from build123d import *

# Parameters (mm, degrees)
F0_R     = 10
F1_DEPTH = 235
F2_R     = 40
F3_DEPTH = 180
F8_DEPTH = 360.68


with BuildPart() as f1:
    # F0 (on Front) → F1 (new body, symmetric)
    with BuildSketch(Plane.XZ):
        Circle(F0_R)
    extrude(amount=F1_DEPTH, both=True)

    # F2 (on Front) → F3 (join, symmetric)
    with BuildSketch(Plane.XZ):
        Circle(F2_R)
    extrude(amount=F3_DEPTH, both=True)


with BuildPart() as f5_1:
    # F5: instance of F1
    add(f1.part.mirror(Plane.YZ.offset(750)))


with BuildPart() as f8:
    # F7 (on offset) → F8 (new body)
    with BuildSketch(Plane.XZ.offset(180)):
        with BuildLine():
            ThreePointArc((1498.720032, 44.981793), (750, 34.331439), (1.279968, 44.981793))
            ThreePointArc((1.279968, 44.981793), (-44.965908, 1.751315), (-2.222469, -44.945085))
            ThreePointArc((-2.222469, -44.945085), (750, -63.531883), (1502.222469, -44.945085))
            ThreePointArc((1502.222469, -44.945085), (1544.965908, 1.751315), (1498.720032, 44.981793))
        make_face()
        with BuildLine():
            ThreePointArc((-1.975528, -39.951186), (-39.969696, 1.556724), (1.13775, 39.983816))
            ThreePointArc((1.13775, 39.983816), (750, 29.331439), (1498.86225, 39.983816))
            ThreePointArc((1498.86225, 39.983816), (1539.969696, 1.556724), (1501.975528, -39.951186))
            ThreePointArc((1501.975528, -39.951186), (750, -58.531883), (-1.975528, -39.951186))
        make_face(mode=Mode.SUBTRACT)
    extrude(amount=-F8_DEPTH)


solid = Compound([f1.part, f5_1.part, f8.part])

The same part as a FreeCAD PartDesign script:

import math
import FreeCAD as App
import Part
import Sketcher
from FreeCAD import Vector

doc = App.newDocument("Part")
body = doc.addObject("PartDesign::Body", "Body")

# Sketch on XZ plane
sketch1 = doc.addObject("Sketcher::SketchObject", "Sketch")
body.addObject(sketch1)
sketch1.AttachmentSupport = (doc.XZ_Plane, [""])
sketch1.MapMode = "FlatFace"
sketch1.addGeometry(Part.Circle(Vector(0, 0, 0), Vector(0, 0, 1), 10), False)
sketch1.addConstraint([
    Sketcher.Constraint("Coincident", 0, 3, -1, 1),
    Sketcher.Constraint("Diameter", 0, 20.0),
])
pad1 = doc.addObject("PartDesign::Pad", "Pad")
body.addObject(pad1)
pad1.Profile = sketch1
pad1.Length = 470
pad1.Midplane = True

# Sketch on XZ plane
sketch2 = doc.addObject("Sketcher::SketchObject", "Sketch001")
body.addObject(sketch2)
sketch2.AttachmentSupport = (doc.XZ_Plane, [""])
sketch2.MapMode = "FlatFace"
sketch2.addGeometry(Part.Circle(Vector(0, 0, 0), Vector(0, 0, 1), 40), False)
sketch2.addConstraint([
    Sketcher.Constraint("Coincident", 0, 3, -1, 1),
    Sketcher.Constraint("Diameter", 0, 80.0),
])
pad2 = doc.addObject("PartDesign::Pad", "Pad001")
body.addObject(pad2)
pad2.Profile = sketch2
pad2.Length = 360
pad2.Midplane = True
body2 = doc.addObject("PartDesign::Body", "Body001")
doc.recompute()

mirroring = doc.addObject("Part::Mirroring", "Mirroring")
mirroring.Source = body
mirroring.Base = Vector(750, 0, 0)
mirroring.Normal = Vector(1, 0, 0)
body2.BaseFeature = mirroring
doc.recompute()
body3 = doc.addObject("PartDesign::Body", "Body002")

# Sketch on XZ plane
sketch3 = doc.addObject("Sketcher::SketchObject", "Sketch002")
body3.addObject(sketch3)
sketch3.AttachmentSupport = (doc.getObject("XZ_Plane002"), [""])
sketch3.MapMode = "FlatFace"
sketch3.AttachmentOffset = App.Placement(Vector(0, 0, 180), App.Rotation())
sketch3.addGeometry([
    Part.ArcOfCircle(Part.Circle(Vector(750, 26357, 0), Vector(0, 0, 1), 26323), math.radians(-91.63), math.radians(-88.37)),  # 0
    Part.ArcOfCircle(Part.Circle(Vector(0, 0, 0), Vector(0, 0, 1), 45), math.radians(88), math.radians(267)),  # 1
    Part.ArcOfCircle(Part.Circle(Vector(750, 15167, 0), Vector(0, 0, 1), 15231), math.radians(-92.83), math.radians(-87.17)),  # 2
    Part.ArcOfCircle(Part.Circle(Vector(1500, 0, 0), Vector(0, 0, 1), 45), math.radians(-87), math.radians(92)),  # 3
    Part.ArcOfCircle(Part.Circle(Vector(750, 15167, 0), Vector(0, 0, 1), 15226), math.radians(-92.83), math.radians(-87.17)),  # 4
    Part.ArcOfCircle(Part.Circle(Vector(0, 0, 0), Vector(0, 0, 1), 40), math.radians(88), math.radians(267)),  # 5
    Part.ArcOfCircle(Part.Circle(Vector(750, 26357, 0), Vector(0, 0, 1), 26328), math.radians(-91.63), math.radians(-88.37)),  # 6
    Part.ArcOfCircle(Part.Circle(Vector(1500, 0, 0), Vector(0, 0, 1), 40), math.radians(-87), math.radians(92)),  # 7
], False)
sketch3.addConstraint([
    Sketcher.Constraint("Tangent", 0, 1, 1, 1),
    Sketcher.Constraint("Tangent", 1, 2, 2, 1),
    Sketcher.Constraint("Tangent", 2, 2, 3, 1),
    Sketcher.Constraint("Tangent", 3, 2, 0, 2),
    Sketcher.Constraint("Tangent", 4, 1, 5, 2),
    Sketcher.Constraint("Tangent", 5, 1, 6, 1),
    Sketcher.Constraint("Tangent", 6, 2, 7, 2),
    Sketcher.Constraint("Tangent", 7, 1, 4, 2),
    Sketcher.Constraint("Coincident", 1, 3, -1, 1),
    Sketcher.Constraint("Coincident", 5, 3, -1, 1),
    Sketcher.Constraint("Coincident", 7, 3, 3, 3),
    Sketcher.Constraint("Equal", 1, 3),
    Sketcher.Constraint("Equal", 5, 7),
    Sketcher.Constraint("PointOnObject", 3, 3, -1),
    Sketcher.Constraint("Radius", 1, 45.0),
    Sketcher.Constraint("Radius", 5, 40.0),
    Sketcher.Constraint("DistanceX", -1, 1, 0, 3, 750.0),
    Sketcher.Constraint("Radius", 2, 15230.813611),
    Sketcher.Constraint("Radius", 4, 15225.813031),
    Sketcher.Constraint("Radius", 6, 26327.83944),
    Sketcher.Constraint("Radius", 0, 26322.839427),
])
pad3 = doc.addObject("PartDesign::Pad", "Pad002")
body3.addObject(pad3)
pad3.Profile = sketch3
pad3.Length = 360.68
pad3.Reversed = True
mirroring.Visibility = False

doc.recompute()
